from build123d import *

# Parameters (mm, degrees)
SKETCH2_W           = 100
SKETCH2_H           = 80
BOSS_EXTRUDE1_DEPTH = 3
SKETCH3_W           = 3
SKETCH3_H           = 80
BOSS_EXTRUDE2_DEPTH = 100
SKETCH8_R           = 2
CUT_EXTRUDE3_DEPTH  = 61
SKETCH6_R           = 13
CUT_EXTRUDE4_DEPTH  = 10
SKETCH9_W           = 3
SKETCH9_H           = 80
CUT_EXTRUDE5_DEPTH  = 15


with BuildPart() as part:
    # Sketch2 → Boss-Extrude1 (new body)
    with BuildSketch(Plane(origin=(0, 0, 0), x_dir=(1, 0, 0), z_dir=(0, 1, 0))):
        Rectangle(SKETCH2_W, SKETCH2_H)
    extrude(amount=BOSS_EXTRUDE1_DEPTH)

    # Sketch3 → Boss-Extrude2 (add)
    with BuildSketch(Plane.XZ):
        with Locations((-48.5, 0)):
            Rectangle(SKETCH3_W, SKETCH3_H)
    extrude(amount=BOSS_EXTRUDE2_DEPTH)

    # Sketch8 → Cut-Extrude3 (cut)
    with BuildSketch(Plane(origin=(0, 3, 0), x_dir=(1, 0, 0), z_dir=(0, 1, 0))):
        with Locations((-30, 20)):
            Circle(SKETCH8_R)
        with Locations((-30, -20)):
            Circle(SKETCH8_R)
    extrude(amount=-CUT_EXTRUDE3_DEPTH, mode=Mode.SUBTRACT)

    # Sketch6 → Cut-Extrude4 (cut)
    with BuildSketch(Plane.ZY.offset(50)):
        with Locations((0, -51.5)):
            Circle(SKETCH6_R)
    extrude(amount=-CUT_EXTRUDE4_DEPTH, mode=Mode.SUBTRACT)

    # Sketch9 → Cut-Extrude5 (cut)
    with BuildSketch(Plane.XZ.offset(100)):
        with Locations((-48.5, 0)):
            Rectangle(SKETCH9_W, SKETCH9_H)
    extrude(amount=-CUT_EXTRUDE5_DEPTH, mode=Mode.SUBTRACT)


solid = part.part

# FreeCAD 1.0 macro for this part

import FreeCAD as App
import Part
import Sketcher
Q = App.Units.Quantity

doc = App.newDocument("Part")
params = doc.addObject("Spreadsheet::Sheet", "Params")
for row, (alias, value) in enumerate([
    ("sketch1_width", "100 mm"),
    ("sketch1_height", "80 mm"),
    ("pad1_length", "3 mm"),
    ("sketch2_width", "3 mm"),
    ("sketch2_height", "80 mm"),
    ("pad2_length", "100 mm"),
    ("sketch3_diameter", "4 mm"),
    ("pocket1_length", "61 mm"),
    ("sketch4_diameter", "26 mm"),
    ("pocket2_length", "10 mm"),
    ("sketch5_width", "3 mm"),
    ("sketch5_height", "80 mm"),
    ("pocket3_length", "15 mm"),
], start=1):
    params.set(f"A{row}", alias)
    params.set(f"B{row}", "=" + value)
    params.setAlias(f"B{row}", alias)

body = doc.addObject("PartDesign::Body", "Body")

# Sketch on XZ plane
sketch1 = body.newObject("Sketcher::SketchObject", "Sketch")
sketch1.AttachmentSupport = (doc.getObject("XZ_Plane"), [""])
sketch1.MapMode = "FlatFace"
sketch1.addGeometry(Part.LineSegment(App.Vector(-50, -40, 0), App.Vector(-50, 40, 0)), False)
sketch1.addGeometry(Part.LineSegment(App.Vector(-50, 40, 0), App.Vector(50, 40, 0)), False)
sketch1.addGeometry(Part.LineSegment(App.Vector(50, 40, 0), App.Vector(50, -40, 0)), False)
sketch1.addGeometry(Part.LineSegment(App.Vector(50, -40, 0), App.Vector(-50, -40, 0)), False)
sketch1.addConstraint(Sketcher.Constraint("Coincident", 0, 2, 1, 1))
sketch1.addConstraint(Sketcher.Constraint("Coincident", 1, 2, 2, 1))
sketch1.addConstraint(Sketcher.Constraint("Coincident", 2, 2, 3, 1))
sketch1.addConstraint(Sketcher.Constraint("Coincident", 3, 2, 0, 1))
sketch1.addConstraint(Sketcher.Constraint("Vertical", 0))
sketch1.addConstraint(Sketcher.Constraint("Horizontal", 1))
sketch1.addConstraint(Sketcher.Constraint("Vertical", 2))
sketch1.addConstraint(Sketcher.Constraint("Horizontal", 3))
sketch1.addConstraint(Sketcher.Constraint("Symmetric", 0, 2, 2, 2, -1, 1))
sketch1.addConstraint(Sketcher.Constraint("DistanceX", 1, 1, 1, 2, Q("100 mm")))
sketch1.addConstraint(Sketcher.Constraint("DistanceY", 0, 1, 0, 2, Q("80 mm")))
sketch1.setExpression("Constraints[9]", "Params.sketch1_width")
sketch1.setExpression("Constraints[10]", "Params.sketch1_height")
pad1 = body.newObject("PartDesign::Pad", "Pad")
pad1.Profile = sketch1
pad1.setExpression("Length", "Params.pad1_length")
pad1.Reversed = True

# Sketch on XZ plane
sketch2 = body.newObject("Sketcher::SketchObject", "Sketch001")
sketch2.AttachmentSupport = (doc.getObject("XZ_Plane"), [""])
sketch2.MapMode = "FlatFace"
sketch2.addGeometry(Part.LineSegment(App.Vector(-50, 40, 0), App.Vector(-50, -40, 0)), False)
sketch2.addGeometry(Part.LineSegment(App.Vector(-50, -40, 0), App.Vector(-47, -40, 0)), False)
sketch2.addGeometry(Part.LineSegment(App.Vector(-47, -40, 0), App.Vector(-47, 40, 0)), False)
sketch2.addGeometry(Part.LineSegment(App.Vector(-47, 40, 0), App.Vector(-50, 40, 0)), False)
sketch2.addConstraint(Sketcher.Constraint("Coincident", 0, 2, 1, 1))
sketch2.addConstraint(Sketcher.Constraint("Coincident", 1, 2, 2, 1))
sketch2.addConstraint(Sketcher.Constraint("Coincident", 2, 2, 3, 1))
sketch2.addConstraint(Sketcher.Constraint("Coincident", 3, 2, 0, 1))
sketch2.addConstraint(Sketcher.Constraint("Vertical", 0))
sketch2.addConstraint(Sketcher.Constraint("Horizontal", 1))
sketch2.addConstraint(Sketcher.Constraint("Vertical", 2))
sketch2.addConstraint(Sketcher.Constraint("Horizontal", 3))
sketch2.addConstraint(Sketcher.Constraint("DistanceX", 1, 1, 1, 2, Q("3 mm")))
sketch2.addConstraint(Sketcher.Constraint("DistanceY", 0, 2, 0, 1, Q("80 mm")))
sketch2.addConstraint(Sketcher.Constraint("DistanceX", 0, 2, -1, 1, Q("50 mm")))
sketch2.addConstraint(Sketcher.Constraint("DistanceY", 0, 2, -1, 1, Q("40 mm")))
sketch2.setExpression("Constraints[8]", "Params.sketch2_width")
sketch2.setExpression("Constraints[9]", "Params.sketch2_height")
pad2 = body.newObject("PartDesign::Pad", "Pad001")
pad2.Profile = sketch2
pad2.setExpression("Length", "Params.pad2_length")

# Sketch on XZ plane
sketch3 = body.newObject("Sketcher::SketchObject", "Sketch002")
sketch3.AttachmentSupport = (doc.getObject("XZ_Plane"), [""])
sketch3.MapMode = "FlatFace"
sketch3.AttachmentOffset = App.Placement(App.Vector(0, 0, -3), App.Rotation())
sketch3.addGeometry(Part.Circle(App.Vector(-30, -20, 0), App.Vector(0, 0, 1), 2), False)
sketch3.addGeometry(Part.Circle(App.Vector(-30, 20, 0), App.Vector(0, 0, 1), 2), False)
sketch3.addConstraint(Sketcher.Constraint("Equal", 0, 1))
sketch3.addConstraint(Sketcher.Constraint("Symmetric", 0, 3, 1, 3, -1))
sketch3.addConstraint(Sketcher.Constraint("Diameter", 0, Q("4 mm")))
sketch3.addConstraint(Sketcher.Constraint("DistanceX", 0, 3, -1, 1, Q("30 mm")))
sketch3.addConstraint(Sketcher.Constraint("DistanceY", 0, 3, -1, 1, Q("20 mm")))
sketch3.setExpression("Constraints[2]", "Params.sketch3_diameter")
pocket1 = body.newObject("PartDesign::Pocket", "Pocket")
pocket1.Profile = sketch3
pocket1.setExpression("Length", "Params.pocket1_length")
pocket1.Reversed = True

# Sketch on YZ plane
sketch4 = body.newObject("Sketcher::SketchObject", "Sketch003")
sketch4.AttachmentSupport = (doc.getObject("YZ_Plane"), [""])
sketch4.MapMode = "FlatFace"
sketch4.AttachmentOffset = App.Placement(App.Vector(0, 0, -50), App.Rotation())
sketch4.addGeometry(Part.Circle(App.Vector(-51.5, 0, 0), App.Vector(0, 0, 1), 13), False)
sketch4.addConstraint(Sketcher.Constraint("PointOnObject", 0, 3, -1))
sketch4.addConstraint(Sketcher.Constraint("Diameter", 0, Q("26 mm")))
sketch4.addConstraint(Sketcher.Constraint("DistanceX", 0, 3, -1, 1, Q("51.5 mm")))
sketch4.setExpression("Constraints[1]", "Params.sketch4_diameter")
pocket2 = body.newObject("PartDesign::Pocket", "Pocket001")
pocket2.Profile = sketch4
pocket2.setExpression("Length", "Params.pocket2_length")
pocket2.Reversed = True

# Sketch on XZ plane
sketch5 = body.newObject("Sketcher::SketchObject", "Sketch004")
sketch5.AttachmentSupport = (doc.getObject("XZ_Plane"), [""])
sketch5.MapMode = "FlatFace"
sketch5.AttachmentOffset = App.Placement(App.Vector(0, 0, 100), App.Rotation())
sketch5.addGeometry(Part.LineSegment(App.Vector(-50, 40, 0), App.Vector(-50, -40, 0)), False)
sketch5.addGeometry(Part.LineSegment(App.Vector(-50, -40, 0), App.Vector(-47, -40, 0)), False)
sketch5.addGeometry(Part.LineSegment(App.Vector(-47, -40, 0), App.Vector(-47, 40, 0)), False)
sketch5.addGeometry(Part.LineSegment(App.Vector(-47, 40, 0), App.Vector(-50, 40, 0)), False)
sketch5.addConstraint(Sketcher.Constraint("Coincident", 0, 2, 1, 1))
sketch5.addConstraint(Sketcher.Constraint("Coincident", 1, 2, 2, 1))
sketch5.addConstraint(Sketcher.Constraint("Coincident", 2, 2, 3, 1))
sketch5.addConstraint(Sketcher.Constraint("Coincident", 3, 2, 0, 1))
sketch5.addConstraint(Sketcher.Constraint("Vertical", 0))
sketch5.addConstraint(Sketcher.Constraint("Horizontal", 1))
sketch5.addConstraint(Sketcher.Constraint("Vertical", 2))
sketch5.addConstraint(Sketcher.Constraint("Horizontal", 3))
sketch5.addConstraint(Sketcher.Constraint("DistanceX", 1, 1, 1, 2, Q("3 mm")))
sketch5.addConstraint(Sketcher.Constraint("DistanceY", 0, 2, 0, 1, Q("80 mm")))
sketch5.addConstraint(Sketcher.Constraint("DistanceX", 0, 2, -1, 1, Q("50 mm")))
sketch5.addConstraint(Sketcher.Constraint("DistanceY", 0, 2, -1, 1, Q("40 mm")))
sketch5.setExpression("Constraints[8]", "Params.sketch5_width")
sketch5.setExpression("Constraints[9]", "Params.sketch5_height")
pocket3 = body.newObject("PartDesign::Pocket", "Pocket002")
pocket3.Profile = sketch5
pocket3.setExpression("Length", "Params.pocket3_length")

doc.recompute()
